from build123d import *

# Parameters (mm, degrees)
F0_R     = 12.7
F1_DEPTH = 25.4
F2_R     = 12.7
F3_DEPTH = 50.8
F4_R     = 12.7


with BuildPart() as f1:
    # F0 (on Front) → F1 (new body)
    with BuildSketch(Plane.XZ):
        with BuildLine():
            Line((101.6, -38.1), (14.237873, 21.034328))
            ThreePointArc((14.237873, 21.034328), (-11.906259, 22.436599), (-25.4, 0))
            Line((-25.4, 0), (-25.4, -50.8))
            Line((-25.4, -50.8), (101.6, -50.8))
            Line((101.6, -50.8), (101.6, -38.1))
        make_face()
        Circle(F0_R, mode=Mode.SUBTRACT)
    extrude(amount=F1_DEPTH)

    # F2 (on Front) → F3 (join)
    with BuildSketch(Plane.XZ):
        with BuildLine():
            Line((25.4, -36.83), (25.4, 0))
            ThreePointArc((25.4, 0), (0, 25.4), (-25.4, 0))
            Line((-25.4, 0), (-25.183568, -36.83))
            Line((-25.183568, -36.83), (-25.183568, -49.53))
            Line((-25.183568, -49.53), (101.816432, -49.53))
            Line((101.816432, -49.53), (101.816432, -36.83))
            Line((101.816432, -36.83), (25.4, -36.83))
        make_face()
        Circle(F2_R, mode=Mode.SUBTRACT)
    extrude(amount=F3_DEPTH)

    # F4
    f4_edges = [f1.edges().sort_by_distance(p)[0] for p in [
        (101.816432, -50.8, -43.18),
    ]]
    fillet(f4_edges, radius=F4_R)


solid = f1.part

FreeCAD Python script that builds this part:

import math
import FreeCAD as App
import Part
import Sketcher
from FreeCAD import Vector
Q = App.Units.Quantity


def edges_at(feature, points):
    """Names of the edges that pass closest to the given points."""
    edges = feature.Shape.Edges
    near = lambda p: min(range(len(edges)), key=lambda i: edges[i].distToShape(Part.Vertex(*p))[0])
    return sorted({f"Edge{near(p) + 1}" for p in points})

doc = App.newDocument("Part")
body = doc.addObject("PartDesign::Body", "Body")

# Sketch on XZ plane
sketch1 = doc.addObject("Sketcher::SketchObject", "Sketch")
body.addObject(sketch1)
sketch1.AttachmentSupport = (doc.XZ_Plane, [""])
sketch1.MapMode = "FlatFace"
sketch1.addGeometry([
    Part.LineSegment(Vector(101.6, -38.1, 0), Vector(14.237873, 21.034328, 0)),  # 0
    Part.ArcOfCircle(Part.Circle(Vector(0, -0.000001, 0), Vector(0, 0, 1), 25.4), math.radians(55.906422), math.radians(179.999999)),  # 1
    Part.LineSegment(Vector(-25.4, 0, 0), Vector(-25.4, -50.8, 0)),  # 2
    Part.LineSegment(Vector(-25.4, -50.8, 0), Vector(101.6, -50.8, 0)),  # 3
    Part.LineSegment(Vector(101.6, -50.8, 0), Vector(101.6, -38.1, 0)),  # 4
    Part.Circle(Vector(0, 0, 0), Vector(0, 0, 1), 12.7),  # 5
], False)
sketch1.addConstraint([
    Sketcher.Constraint("Tangent", 0, 2, 1, 1),
    Sketcher.Constraint("Tangent", 1, 2, 2, 1),
    Sketcher.Constraint("Coincident", 2, 2, 3, 1),
    Sketcher.Constraint("Coincident", 3, 2, 4, 1),
    Sketcher.Constraint("Coincident", 4, 2, 0, 1),
    Sketcher.Constraint("Vertical", 2),
    Sketcher.Constraint("Horizontal", 3),
    Sketcher.Constraint("Vertical", 4),
    Sketcher.Constraint("Coincident", 1, 3, -1, 1),
    Sketcher.Constraint("Coincident", 5, 3, -1, 1),
    Sketcher.Constraint("Diameter", 5, Q("1 in")),
    Sketcher.Constraint("Radius", 1, Q("1 in")),
    Sketcher.Constraint("DistanceX", 3, 1, 3, 2, Q("5 in")),
    Sketcher.Constraint("DistanceY", 2, 2, 2, 1, Q("2 in")),
    Sketcher.Constraint("DistanceY", 4, 1, 4, 2, Q("0.5 in")),
])
pad1 = doc.addObject("PartDesign::Pad", "Pad")
body.addObject(pad1)
pad1.Profile = sketch1
pad1.Length = Q("1 in")

# Sketch on XZ plane
sketch2 = doc.addObject("Sketcher::SketchObject", "Sketch001")
body.addObject(sketch2)
sketch2.AttachmentSupport = (doc.XZ_Plane, [""])
sketch2.MapMode = "FlatFace"
sketch2.addGeometry([
    Part.LineSegment(Vector(25.4, -36.83, 0), Vector(25.4, 0, 0)),  # 0
    Part.ArcOfCircle(Part.Circle(Vector(0, 0, 0), Vector(0, 0, 1), 25.4), math.radians(0), math.radians(180)),  # 1
    Part.LineSegment(Vector(-25.4, 0, 0), Vector(-25.183568, -36.83, 0)),  # 2
    Part.LineSegment(Vector(-25.183568, -36.83, 0), Vector(-25.183568, -49.53, 0)),  # 3
    Part.LineSegment(Vector(-25.183568, -49.53, 0), Vector(101.816432, -49.53, 0)),  # 4
    Part.LineSegment(Vector(101.816432, -49.53, 0), Vector(101.816432, -36.83, 0)),  # 5
    Part.LineSegment(Vector(101.816432, -36.83, 0), Vector(25.4, -36.83, 0)),  # 6
    Part.Circle(Vector(0, 0, 0), Vector(0, 0, 1), 12.7),  # 7
], False)
sketch2.addConstraint([
    Sketcher.Constraint("Tangent", 0, 2, 1, 1),
    Sketcher.Constraint("Coincident", 1, 2, 2, 1),
    Sketcher.Constraint("Coincident", 2, 2, 3, 1),
    Sketcher.Constraint("Coincident", 3, 2, 4, 1),
    Sketcher.Constraint("Coincident", 4, 2, 5, 1),
    Sketcher.Constraint("Coincident", 5, 2, 6, 1),
    Sketcher.Constraint("Coincident", 6, 2, 0, 1),
    Sketcher.Constraint("Vertical", 0),
    Sketcher.Constraint("Vertical", 3),
    Sketcher.Constraint("Horizontal", 4),
    Sketcher.Constraint("Vertical", 5),
    Sketcher.Constraint("Horizontal", 6),
    Sketcher.Constraint("Coincident", 1, 3, -1, 1),
    Sketcher.Constraint("Coincident", 7, 3, -1, 1),
    Sketcher.Constraint("PointOnObject", 1, 2, -1),
    Sketcher.Constraint("Horizontal", 2, 2, 5, 2),
    Sketcher.Constraint("Diameter", 7, Q("1 in")),
    Sketcher.Constraint("Radius", 1, Q("1 in")),
    Sketcher.Constraint("DistanceX", 4, 1, 4, 2, Q("5 in")),
    Sketcher.Constraint("DistanceY", 3, 2, 3, 1, Q("0.5 in")),
    Sketcher.Constraint("DistanceY", 0, 1, 0, 2, Q("1.45 in")),
    Sketcher.Constraint("DistanceX", 6, 2, 6, 1, 76.416432),
])
pad2 = doc.addObject("PartDesign::Pad", "Pad001")
body.addObject(pad2)
pad2.Profile = sketch2
pad2.Length = Q("2 in")
doc.recompute()

fillet = doc.addObject("PartDesign::Fillet", "Fillet")
body.addObject(fillet)
fillet.Base = (pad2, edges_at(pad2, [(101.816, -50.8, -43.18)]))
fillet.Radius = Q("0.5 in")

doc.recompute()
